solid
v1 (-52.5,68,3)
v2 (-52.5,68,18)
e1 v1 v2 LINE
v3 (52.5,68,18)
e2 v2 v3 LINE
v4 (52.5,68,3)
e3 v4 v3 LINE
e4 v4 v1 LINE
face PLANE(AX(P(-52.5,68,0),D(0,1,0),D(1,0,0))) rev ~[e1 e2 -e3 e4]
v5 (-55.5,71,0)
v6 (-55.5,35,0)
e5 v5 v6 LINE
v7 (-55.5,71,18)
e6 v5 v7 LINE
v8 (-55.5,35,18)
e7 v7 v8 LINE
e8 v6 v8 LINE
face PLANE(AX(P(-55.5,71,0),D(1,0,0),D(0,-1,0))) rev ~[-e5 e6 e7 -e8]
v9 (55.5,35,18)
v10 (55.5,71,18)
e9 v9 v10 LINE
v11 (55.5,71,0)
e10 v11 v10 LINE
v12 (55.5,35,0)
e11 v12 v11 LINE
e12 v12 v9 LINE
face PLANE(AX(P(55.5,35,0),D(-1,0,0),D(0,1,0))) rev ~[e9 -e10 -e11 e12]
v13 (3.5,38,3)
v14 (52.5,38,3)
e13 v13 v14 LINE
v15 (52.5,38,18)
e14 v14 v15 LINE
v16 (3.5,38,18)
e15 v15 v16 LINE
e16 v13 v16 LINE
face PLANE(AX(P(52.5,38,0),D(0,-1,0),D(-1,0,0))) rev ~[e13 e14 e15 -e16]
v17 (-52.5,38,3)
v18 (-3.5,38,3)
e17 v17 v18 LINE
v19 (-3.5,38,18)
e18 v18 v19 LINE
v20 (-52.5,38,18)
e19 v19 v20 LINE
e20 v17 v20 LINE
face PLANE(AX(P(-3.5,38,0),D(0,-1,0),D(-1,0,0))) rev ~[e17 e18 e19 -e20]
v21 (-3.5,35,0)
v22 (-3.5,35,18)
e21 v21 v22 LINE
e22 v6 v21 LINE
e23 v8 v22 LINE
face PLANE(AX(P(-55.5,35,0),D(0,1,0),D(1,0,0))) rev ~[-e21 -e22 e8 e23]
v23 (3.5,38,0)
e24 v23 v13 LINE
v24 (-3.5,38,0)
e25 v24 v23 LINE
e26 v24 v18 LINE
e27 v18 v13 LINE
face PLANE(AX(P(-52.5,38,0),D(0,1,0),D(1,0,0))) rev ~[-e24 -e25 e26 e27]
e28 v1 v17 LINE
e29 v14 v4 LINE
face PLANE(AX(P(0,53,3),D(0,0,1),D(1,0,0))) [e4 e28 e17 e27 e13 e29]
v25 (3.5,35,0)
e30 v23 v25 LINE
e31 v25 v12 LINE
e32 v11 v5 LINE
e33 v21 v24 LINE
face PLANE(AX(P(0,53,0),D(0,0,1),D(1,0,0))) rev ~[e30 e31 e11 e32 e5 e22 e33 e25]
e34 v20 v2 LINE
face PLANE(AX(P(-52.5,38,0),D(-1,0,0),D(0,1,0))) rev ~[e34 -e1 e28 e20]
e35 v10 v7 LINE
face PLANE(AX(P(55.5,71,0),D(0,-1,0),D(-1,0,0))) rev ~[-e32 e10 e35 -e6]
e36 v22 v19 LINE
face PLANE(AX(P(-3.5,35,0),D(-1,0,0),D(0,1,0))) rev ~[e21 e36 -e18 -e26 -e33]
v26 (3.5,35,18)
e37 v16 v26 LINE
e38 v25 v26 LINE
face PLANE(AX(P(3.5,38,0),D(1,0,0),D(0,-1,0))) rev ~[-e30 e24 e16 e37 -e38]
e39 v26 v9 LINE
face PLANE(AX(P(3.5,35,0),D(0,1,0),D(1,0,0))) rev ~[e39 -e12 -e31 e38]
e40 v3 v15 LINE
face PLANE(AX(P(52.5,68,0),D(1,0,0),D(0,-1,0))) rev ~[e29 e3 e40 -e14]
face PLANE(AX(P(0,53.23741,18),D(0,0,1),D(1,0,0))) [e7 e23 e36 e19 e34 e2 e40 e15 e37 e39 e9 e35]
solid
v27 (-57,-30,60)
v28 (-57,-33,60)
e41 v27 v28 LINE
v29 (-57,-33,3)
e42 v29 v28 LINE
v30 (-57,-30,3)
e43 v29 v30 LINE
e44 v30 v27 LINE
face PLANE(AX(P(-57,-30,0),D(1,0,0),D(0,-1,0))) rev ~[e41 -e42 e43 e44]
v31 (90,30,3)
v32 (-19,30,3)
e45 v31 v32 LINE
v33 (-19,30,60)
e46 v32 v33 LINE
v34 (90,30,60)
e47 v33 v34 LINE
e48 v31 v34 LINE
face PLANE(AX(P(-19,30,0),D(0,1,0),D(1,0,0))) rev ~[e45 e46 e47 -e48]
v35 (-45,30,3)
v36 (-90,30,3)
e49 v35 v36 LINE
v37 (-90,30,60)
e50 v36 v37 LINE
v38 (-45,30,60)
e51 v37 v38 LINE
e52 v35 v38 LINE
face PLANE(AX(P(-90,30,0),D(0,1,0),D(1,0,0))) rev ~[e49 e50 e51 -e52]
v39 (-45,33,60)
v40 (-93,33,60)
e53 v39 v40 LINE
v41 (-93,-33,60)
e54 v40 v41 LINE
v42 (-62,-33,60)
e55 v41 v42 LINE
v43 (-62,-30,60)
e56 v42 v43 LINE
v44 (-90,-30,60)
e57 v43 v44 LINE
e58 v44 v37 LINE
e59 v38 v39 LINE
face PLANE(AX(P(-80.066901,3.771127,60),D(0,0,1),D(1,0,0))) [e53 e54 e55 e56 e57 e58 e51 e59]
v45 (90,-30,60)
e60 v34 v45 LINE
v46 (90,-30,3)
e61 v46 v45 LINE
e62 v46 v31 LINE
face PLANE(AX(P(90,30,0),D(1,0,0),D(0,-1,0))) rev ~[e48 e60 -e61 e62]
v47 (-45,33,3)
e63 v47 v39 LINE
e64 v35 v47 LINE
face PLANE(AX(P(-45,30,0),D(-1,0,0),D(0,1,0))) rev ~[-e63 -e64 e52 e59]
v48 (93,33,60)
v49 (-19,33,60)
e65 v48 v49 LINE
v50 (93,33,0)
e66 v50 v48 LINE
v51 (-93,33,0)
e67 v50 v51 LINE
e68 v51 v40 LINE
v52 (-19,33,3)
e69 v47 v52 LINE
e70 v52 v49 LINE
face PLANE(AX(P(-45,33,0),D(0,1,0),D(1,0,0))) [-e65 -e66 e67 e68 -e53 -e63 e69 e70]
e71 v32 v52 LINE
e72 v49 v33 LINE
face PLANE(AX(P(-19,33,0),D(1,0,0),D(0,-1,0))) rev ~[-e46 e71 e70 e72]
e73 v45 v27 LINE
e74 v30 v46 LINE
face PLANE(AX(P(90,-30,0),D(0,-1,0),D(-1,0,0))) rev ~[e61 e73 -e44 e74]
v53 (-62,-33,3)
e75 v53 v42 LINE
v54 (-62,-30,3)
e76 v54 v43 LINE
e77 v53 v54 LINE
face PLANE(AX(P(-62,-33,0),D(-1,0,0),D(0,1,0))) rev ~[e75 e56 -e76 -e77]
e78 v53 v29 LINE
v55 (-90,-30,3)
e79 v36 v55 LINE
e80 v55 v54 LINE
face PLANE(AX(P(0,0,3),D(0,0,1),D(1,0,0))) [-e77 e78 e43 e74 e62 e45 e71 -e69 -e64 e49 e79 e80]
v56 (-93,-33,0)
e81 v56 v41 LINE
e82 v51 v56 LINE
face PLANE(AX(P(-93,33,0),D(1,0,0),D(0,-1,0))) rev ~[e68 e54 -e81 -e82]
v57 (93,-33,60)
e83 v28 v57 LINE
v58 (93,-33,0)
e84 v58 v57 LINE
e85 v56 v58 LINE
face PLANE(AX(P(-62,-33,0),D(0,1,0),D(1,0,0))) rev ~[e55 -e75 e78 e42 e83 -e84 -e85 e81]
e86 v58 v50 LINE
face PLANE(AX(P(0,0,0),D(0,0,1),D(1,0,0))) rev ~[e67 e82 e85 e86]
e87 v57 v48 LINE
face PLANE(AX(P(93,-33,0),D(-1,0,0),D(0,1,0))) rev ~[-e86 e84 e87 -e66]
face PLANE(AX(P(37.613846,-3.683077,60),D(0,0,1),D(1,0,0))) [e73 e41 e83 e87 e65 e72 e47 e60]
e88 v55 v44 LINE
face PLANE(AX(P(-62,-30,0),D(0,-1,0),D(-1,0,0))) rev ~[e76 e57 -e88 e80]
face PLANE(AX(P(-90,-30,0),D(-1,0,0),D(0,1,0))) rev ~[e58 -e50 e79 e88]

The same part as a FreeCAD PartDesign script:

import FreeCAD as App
import Part
import Sketcher
from FreeCAD import Vector

doc = App.newDocument("Part")
body = doc.addObject("PartDesign::Body", "Body")

# Sketch on XY plane
sketch1 = body.newObject("Sketcher::SketchObject", "Sketch")
sketch1.AttachmentSupport = (doc.getObject("XY_Plane"), [""])
sketch1.MapMode = "FlatFace"
sketch1.addGeometry(Part.LineSegment(Vector(52, 38, 0), Vector(52, 68, 0)), False)
sketch1.addGeometry(Part.LineSegment(Vector(52, 68, 0), Vector(-52, 68, 0)), False)
sketch1.addGeometry(Part.LineSegment(Vector(-52, 68, 0), Vector(-52, 38, 0)), False)
sketch1.addGeometry(Part.LineSegment(Vector(-52, 38, 0), Vector(52, 38, 0)), False)
sketch1.addConstraint(Sketcher.Constraint("Coincident", 0, 2, 1, 1))
sketch1.addConstraint(Sketcher.Constraint("Coincident", 1, 2, 2, 1))
sketch1.addConstraint(Sketcher.Constraint("Coincident", 2, 2, 3, 1))
sketch1.addConstraint(Sketcher.Constraint("Coincident", 3, 2, 0, 1))
sketch1.addConstraint(Sketcher.Constraint("Vertical", 0))
sketch1.addConstraint(Sketcher.Constraint("Horizontal", 1))
sketch1.addConstraint(Sketcher.Constraint("Vertical", 2))
sketch1.addConstraint(Sketcher.Constraint("Horizontal", 3))
sketch1.addConstraint(Sketcher.Constraint("DistanceX", 1, 2, 1, 1, 105.0))
sketch1.addConstraint(Sketcher.Constraint("DistanceY", 0, 1, 0, 2, 30.0))
sketch1.addConstraint(Sketcher.Constraint("DistanceY", -1, 1, 0, 2, 68.0))
sketch1.addConstraint(Sketcher.Constraint("DistanceX", -1, 1, 0, 2, 52.5))
pad1 = body.newObject("PartDesign::Pad", "Pad")
pad1.Profile = sketch1
pad1.Length = 3

# Sketch on XY plane
sketch2 = body.newObject("Sketcher::SketchObject", "Sketch001")
sketch2.AttachmentSupport = (doc.getObject("XY_Plane"), [""])
sketch2.MapMode = "FlatFace"
sketch2.addGeometry(Part.LineSegment(Vector(52.5, 68, 0), Vector(52.5, 38, 0)), False)
sketch2.addGeometry(Part.LineSegment(Vector(52.5, 38, 0), Vector(3.5, 38, 0)), False)
sketch2.addGeometry(Part.LineSegment(Vector(3.5, 38, 0), Vector(3.5, 35, 0)), False)
sketch2.addGeometry(Part.LineSegment(Vector(3.5, 35, 0), Vector(55.5, 35, 0)), False)
sketch2.addGeometry(Part.LineSegment(Vector(55.5, 35, 0), Vector(55.5, 71, 0)), False)
sketch2.addGeometry(Part.LineSegment(Vector(55.5, 71, 0), Vector(-55.5, 71, 0)), False)
sketch2.addGeometry(Part.LineSegment(Vector(-55.5, 71, 0), Vector(-55.5, 35, 0)), False)
sketch2.addGeometry(Part.LineSegment(Vector(-55.5, 35, 0), Vector(-3.5, 35, 0)), False)
sketch2.addGeometry(Part.LineSegment(Vector(-3.5, 35, 0), Vector(-3.5, 38, 0)), False)
sketch2.addGeometry(Part.LineSegment(Vector(-3.5, 38, 0), Vector(-52.5, 38, 0)), False)
sketch2.addGeometry(Part.LineSegment(Vector(-52.5, 38, 0), Vector(-52.5, 68, 0)), False)
sketch2.addGeometry(Part.LineSegment(Vector(-52.5, 68, 0), Vector(52.5, 68, 0)), False)
sketch2.addConstraint(Sketcher.Constraint("Coincident", 0, 2, 1, 1))
sketch2.addConstraint(Sketcher.Constraint("Coincident", 1, 2, 2, 1))
sketch2.addConstraint(Sketcher.Constraint("Coincident", 2, 2, 3, 1))
sketch2.addConstraint(Sketcher.Constraint("Coincident", 3, 2, 4, 1))
sketch2.addConstraint(Sketcher.Constraint("Coincident", 4, 2, 5, 1))
sketch2.addConstraint(Sketcher.Constraint("Coincident", 5, 2, 6, 1))
sketch2.addConstraint(Sketcher.Constraint("Coincident", 6, 2, 7, 1))
sketch2.addConstraint(Sketcher.Constraint("Coincident", 7, 2, 8, 1))
sketch2.addConstraint(Sketcher.Constraint("Coincident", 8, 2, 9, 1))
sketch2.addConstraint(Sketcher.Constraint("Coincident", 9, 2, 10, 1))
sketch2.addConstraint(Sketcher.Constraint("Coincident", 10, 2, 11, 1))
sketch2.addConstraint(Sketcher.Constraint("Coincident", 11, 2, 0, 1))
sketch2.addConstraint(Sketcher.Constraint("Vertical", 0))
sketch2.addConstraint(Sketcher.Constraint("Horizontal", 1))
sketch2.addConstraint(Sketcher.Constraint("Vertical", 2))
sketch2.addConstraint(Sketcher.Constraint("Horizontal", 3))
sketch2.addConstraint(Sketcher.Constraint("Vertical", 4))
sketch2.addConstraint(Sketcher.Constraint("Horizontal", 5))
sketch2.addConstraint(Sketcher.Constraint("Vertical", 6))
sketch2.addConstraint(Sketcher.Constraint("Horizontal", 7))
sketch2.addConstraint(Sketcher.Constraint("Vertical", 8))
sketch2.addConstraint(Sketcher.Constraint("Horizontal", 9))
sketch2.addConstraint(Sketcher.Constraint("Vertical", 10))
sketch2.addConstraint(Sketcher.Constraint("Horizontal", 11))
sketch2.addConstraint(Sketcher.Constraint("Symmetric", 3, 2, 6, 2, -2))
sketch2.addConstraint(Sketcher.Constraint("Symmetric", 1, 2, 8, 2, -2))
sketch2.addConstraint(Sketcher.Constraint("Equal", 1, 9))
sketch2.addConstraint(Sketcher.Constraint("DistanceX", 1, 2, 1, 1, 49.0))
sketch2.addConstraint(Sketcher.Constraint("DistanceX", 3, 1, 3, 2, 52.0))
sketch2.addConstraint(Sketcher.Constraint("DistanceX", 5, 2, 5, 1, 111.0))
sketch2.addConstraint(Sketcher.Constraint("DistanceY", 0, 2, 0, 1, 30.0))
sketch2.addConstraint(Sketcher.Constraint("DistanceY", 2, 2, 2, 1, 3.0))
sketch2.addConstraint(Sketcher.Constraint("DistanceY", 4, 1, 4, 2, 36.0))
sketch2.addConstraint(Sketcher.Constraint("DistanceY", -1, 1, 0, 2, 38.0))
pad2 = body.newObject("PartDesign::Pad", "Pad001")
pad2.Profile = sketch2
pad2.Length = 18
body2 = doc.addObject("PartDesign::Body", "Body001")

# Sketch on XY plane
sketch3 = body2.newObject("Sketcher::SketchObject", "Sketch002")
sketch3.AttachmentSupport = (doc.getObject("XY_Plane001"), [""])
sketch3.MapMode = "FlatFace"
sketch3.addGeometry(Part.LineSegment(Vector(90, -30, 0), Vector(90, 30, 0)), False)
sketch3.addGeometry(Part.LineSegment(Vector(90, 30, 0), Vector(-19, 30, 0)), False)
sketch3.addGeometry(Part.LineSegment(Vector(-19, 30, 0), Vector(-19, 33, 0)), False)
sketch3.addGeometry(Part.LineSegment(Vector(-19, 33, 0), Vector(-45, 33, 0)), False)
sketch3.addGeometry(Part.LineSegment(Vector(-45, 33, 0), Vector(-45, 30, 0)), False)
sketch3.addGeometry(Part.LineSegment(Vector(-45, 30, 0), Vector(-90, 30, 0)), False)
sketch3.addGeometry(Part.LineSegment(Vector(-90, 30, 0), Vector(-90, -30, 0)), False)
sketch3.addGeometry(Part.LineSegment(Vector(-90, -30, 0), Vector(-62, -30, 0)), False)
sketch3.addGeometry(Part.LineSegment(Vector(-62, -30, 0), Vector(-62, -33, 0)), False)
sketch3.addGeometry(Part.LineSegment(Vector(-62, -33, 0), Vector(-57, -33, 0)), False)
sketch3.addGeometry(Part.LineSegment(Vector(-57, -33, 0), Vector(-57, -30, 0)), False)
sketch3.addGeometry(Part.LineSegment(Vector(-57, -30, 0), Vector(90, -30, 0)), False)
sketch3.addConstraint(Sketcher.Constraint("Coincident", 0, 2, 1, 1))
sketch3.addConstraint(Sketcher.Constraint("Coincident", 1, 2, 2, 1))
sketch3.addConstraint(Sketcher.Constraint("Coincident", 2, 2, 3, 1))
sketch3.addConstraint(Sketcher.Constraint("Coincident", 3, 2, 4, 1))
sketch3.addConstraint(Sketcher.Constraint("Coincident", 4, 2, 5, 1))
sketch3.addConstraint(Sketcher.Constraint("Coincident", 5, 2, 6, 1))
sketch3.addConstraint(Sketcher.Constraint("Coincident", 6, 2, 7, 1))
sketch3.addConstraint(Sketcher.Constraint("Coincident", 7, 2, 8, 1))
sketch3.addConstraint(Sketcher.Constraint("Coincident", 8, 2, 9, 1))
sketch3.addConstraint(Sketcher.Constraint("Coincident", 9, 2, 10, 1))
sketch3.addConstraint(Sketcher.Constraint("Coincident", 10, 2, 11, 1))
sketch3.addConstraint(Sketcher.Constraint("Coincident", 11, 2, 0, 1))
sketch3.addConstraint(Sketcher.Constraint("Vertical", 0))
sketch3.addConstraint(Sketcher.Constraint("Horizontal", 1))
sketch3.addConstraint(Sketcher.Constraint("Vertical", 2))
sketch3.addConstraint(Sketcher.Constraint("Horizontal", 3))
sketch3.addConstraint(Sketcher.Constraint("Vertical", 4))
sketch3.addConstraint(Sketcher.Constraint("Horizontal", 5))
sketch3.addConstraint(Sketcher.Constraint("Vertical", 6))
sketch3.addConstraint(Sketcher.Constraint("Horizontal", 7))
sketch3.addConstraint(Sketcher.Constraint("Vertical", 8))
sketch3.addConstraint(Sketcher.Constraint("Horizontal", 9))
sketch3.addConstraint(Sketcher.Constraint("Vertical", 10))
sketch3.addConstraint(Sketcher.Constraint("Horizontal", 11))
sketch3.addConstraint(Sketcher.Constraint("Symmetric", 0, 2, 6, 2, -1, 1))
sketch3.addConstraint(Sketcher.Constraint("Horizontal", 1, 2, 4, 2))
sketch3.addConstraint(Sketcher.Constraint("Horizontal", 7, 2, 10, 2))
sketch3.addConstraint(Sketcher.Constraint("Equal", 4, 8))
sketch3.addConstraint(Sketcher.Constraint("DistanceX", 1, 2, 1, 1, 109.0))
sketch3.addConstraint(Sketcher.Constraint("DistanceX", 3, 2, 3, 1, 26.0))
sketch3.addConstraint(Sketcher.Constraint("DistanceX", 5, 2, 5, 1, 45.0))
sketch3.addConstraint(Sketcher.Constraint("DistanceX", 7, 1, 7, 2, 28.0))
sketch3.addConstraint(Sketcher.Constraint("DistanceX", 9, 1, 9, 2, 5.0))
sketch3.addConstraint(Sketcher.Constraint("DistanceY", 0, 1, 0, 2, 60.0))
sketch3.addConstraint(Sketcher.Constraint("DistanceY", 2, 1, 2, 2, 3.0))
pad3 = body2.newObject("PartDesign::Pad", "Pad002")
pad3.Profile = sketch3
pad3.Length = 3

# Sketch on XY plane
sketch4 = body2.newObject("Sketcher::SketchObject", "Sketch003")
sketch4.AttachmentSupport = (doc.getObject("XY_Plane001"), [""])
sketch4.MapMode = "FlatFace"
sketch4.addGeometry(Part.LineSegment(Vector(90, 30, 0), Vector(90, -30, 0)), False)
sketch4.addGeometry(Part.LineSegment(Vector(90, -30, 0), Vector(-57, -30, 0)), False)
sketch4.addGeometry(Part.LineSegment(Vector(-57, -30, 0), Vector(-57, -33, 0)), False)
sketch4.addGeometry(Part.LineSegment(Vector(-57, -33, 0), Vector(93, -33, 0)), False)
sketch4.addGeometry(Part.LineSegment(Vector(93, -33, 0), Vector(93, 33, 0)), False)
sketch4.addGeometry(Part.LineSegment(Vector(93, 33, 0), Vector(-19, 33, 0)), False)
sketch4.addGeometry(Part.LineSegment(Vector(-19, 33, 0), Vector(-19, 30, 0)), False)
sketch4.addGeometry(Part.LineSegment(Vector(-19, 30, 0), Vector(90, 30, 0)), False)
sketch4.addGeometry(Part.LineSegment(Vector(-62, -33, 0), Vector(-62, -30, 0)), False)
sketch4.addGeometry(Part.LineSegment(Vector(-62, -30, 0), Vector(-90, -30, 0)), False)
sketch4.addGeometry(Part.LineSegment(Vector(-90, -30, 0), Vector(-90, 30, 0)), False)
sketch4.addGeometry(Part.LineSegment(Vector(-90, 30, 0), Vector(-45, 30, 0)), False)
sketch4.addGeometry(Part.LineSegment(Vector(-45, 30, 0), Vector(-45, 33, 0)), False)
sketch4.addGeometry(Part.LineSegment(Vector(-45, 33, 0), Vector(-93, 33, 0)), False)
sketch4.addGeometry(Part.LineSegment(Vector(-93, 33, 0), Vector(-93, -33, 0)), False)
sketch4.addGeometry(Part.LineSegment(Vector(-93, -33, 0), Vector(-62, -33, 0)), False)
sketch4.addConstraint(Sketcher.Constraint("Coincident", 0, 2, 1, 1))
sketch4.addConstraint(Sketcher.Constraint("Coincident", 1, 2, 2, 1))
sketch4.addConstraint(Sketcher.Constraint("Coincident", 2, 2, 3, 1))
sketch4.addConstraint(Sketcher.Constraint("Coincident", 3, 2, 4, 1))
sketch4.addConstraint(Sketcher.Constraint("Coincident", 4, 2, 5, 1))
sketch4.addConstraint(Sketcher.Constraint("Coincident", 5, 2, 6, 1))
sketch4.addConstraint(Sketcher.Constraint("Coincident", 6, 2, 7, 1))
sketch4.addConstraint(Sketcher.Constraint("Coincident", 7, 2, 0, 1))
sketch4.addConstraint(Sketcher.Constraint("Coincident", 8, 2, 9, 1))
sketch4.addConstraint(Sketcher.Constraint("Coincident", 9, 2, 10, 1))
sketch4.addConstraint(Sketcher.Constraint("Coincident", 10, 2, 11, 1))
sketch4.addConstraint(Sketcher.Constraint("Coincident", 11, 2, 12, 1))
sketch4.addConstraint(Sketcher.Constraint("Coincident", 12, 2, 13, 1))
sketch4.addConstraint(Sketcher.Constraint("Coincident", 13, 2, 14, 1))
sketch4.addConstraint(Sketcher.Constraint("Coincident", 14, 2, 15, 1))
sketch4.addConstraint(Sketcher.Constraint("Coincident", 15, 2, 8, 1))
sketch4.addConstraint(Sketcher.Constraint("Vertical", 0))
sketch4.addConstraint(Sketcher.Constraint("Horizontal", 1))
sketch4.addConstraint(Sketcher.Constraint("Vertical", 2))
sketch4.addConstraint(Sketcher.Constraint("Horizontal", 3))
sketch4.addConstraint(Sketcher.Constraint("Vertical", 4))
sketch4.addConstraint(Sketcher.Constraint("Horizontal", 5))
sketch4.addConstraint(Sketcher.Constraint("Vertical", 6))
sketch4.addConstraint(Sketcher.Constraint("Horizontal", 7))
sketch4.addConstraint(Sketcher.Constraint("Vertical", 8))
sketch4.addConstraint(Sketcher.Constraint("Horizontal", 9))
sketch4.addConstraint(Sketcher.Constraint("Vertical", 10))
sketch4.addConstraint(Sketcher.Constraint("Horizontal", 11))
sketch4.addConstraint(Sketcher.Constraint("Vertical", 12))
sketch4.addConstraint(Sketcher.Constraint("Horizontal", 13))
sketch4.addConstraint(Sketcher.Constraint("Vertical", 14))
sketch4.addConstraint(Sketcher.Constraint("Horizontal", 15))
sketch4.addConstraint(Sketcher.Constraint("Symmetric", 7, 2, 9, 2, -1, 1))
sketch4.addConstraint(Sketcher.Constraint("Symmetric", 3, 2, 13, 2, -1, 1))
sketch4.addConstraint(Sketcher.Constraint("Horizontal", 1, 2, 8, 2))
sketch4.addConstraint(Sketcher.Constraint("Horizontal", 7, 2, 10, 2))
sketch4.addConstraint(Sketcher.Constraint("Horizontal", 5, 2, 12, 2))
sketch4.addConstraint(Sketcher.Constraint("Horizontal", 3, 2, 14, 2))
sketch4.addConstraint(Sketcher.Constraint("DistanceX", 1, 2, 1, 1, 147.0))
sketch4.addConstraint(Sketcher.Constraint("DistanceX", 3, 1, 3, 2, 150.0))
sketch4.addConstraint(Sketcher.Constraint("DistanceX", 5, 2, 5, 1, 112.0))
sketch4.addConstraint(Sketcher.Constraint("DistanceX", 9, 2, 9, 1, 28.0))
sketch4.addConstraint(Sketcher.Constraint("DistanceX", 11, 1, 11, 2, 45.0))
sketch4.addConstraint(Sketcher.Constraint("DistanceY", 0, 2, 0, 1, 60.0))
sketch4.addConstraint(Sketcher.Constraint("DistanceY", 2, 2, 2, 1, 3.0))
sketch4.addConstraint(Sketcher.Constraint("DistanceX", -1, 1, 0, 2, 90.0))
pad4 = body2.newObject("PartDesign::Pad", "Pad003")
pad4.Profile = sketch4
pad4.Length = 60

doc.recompute()
